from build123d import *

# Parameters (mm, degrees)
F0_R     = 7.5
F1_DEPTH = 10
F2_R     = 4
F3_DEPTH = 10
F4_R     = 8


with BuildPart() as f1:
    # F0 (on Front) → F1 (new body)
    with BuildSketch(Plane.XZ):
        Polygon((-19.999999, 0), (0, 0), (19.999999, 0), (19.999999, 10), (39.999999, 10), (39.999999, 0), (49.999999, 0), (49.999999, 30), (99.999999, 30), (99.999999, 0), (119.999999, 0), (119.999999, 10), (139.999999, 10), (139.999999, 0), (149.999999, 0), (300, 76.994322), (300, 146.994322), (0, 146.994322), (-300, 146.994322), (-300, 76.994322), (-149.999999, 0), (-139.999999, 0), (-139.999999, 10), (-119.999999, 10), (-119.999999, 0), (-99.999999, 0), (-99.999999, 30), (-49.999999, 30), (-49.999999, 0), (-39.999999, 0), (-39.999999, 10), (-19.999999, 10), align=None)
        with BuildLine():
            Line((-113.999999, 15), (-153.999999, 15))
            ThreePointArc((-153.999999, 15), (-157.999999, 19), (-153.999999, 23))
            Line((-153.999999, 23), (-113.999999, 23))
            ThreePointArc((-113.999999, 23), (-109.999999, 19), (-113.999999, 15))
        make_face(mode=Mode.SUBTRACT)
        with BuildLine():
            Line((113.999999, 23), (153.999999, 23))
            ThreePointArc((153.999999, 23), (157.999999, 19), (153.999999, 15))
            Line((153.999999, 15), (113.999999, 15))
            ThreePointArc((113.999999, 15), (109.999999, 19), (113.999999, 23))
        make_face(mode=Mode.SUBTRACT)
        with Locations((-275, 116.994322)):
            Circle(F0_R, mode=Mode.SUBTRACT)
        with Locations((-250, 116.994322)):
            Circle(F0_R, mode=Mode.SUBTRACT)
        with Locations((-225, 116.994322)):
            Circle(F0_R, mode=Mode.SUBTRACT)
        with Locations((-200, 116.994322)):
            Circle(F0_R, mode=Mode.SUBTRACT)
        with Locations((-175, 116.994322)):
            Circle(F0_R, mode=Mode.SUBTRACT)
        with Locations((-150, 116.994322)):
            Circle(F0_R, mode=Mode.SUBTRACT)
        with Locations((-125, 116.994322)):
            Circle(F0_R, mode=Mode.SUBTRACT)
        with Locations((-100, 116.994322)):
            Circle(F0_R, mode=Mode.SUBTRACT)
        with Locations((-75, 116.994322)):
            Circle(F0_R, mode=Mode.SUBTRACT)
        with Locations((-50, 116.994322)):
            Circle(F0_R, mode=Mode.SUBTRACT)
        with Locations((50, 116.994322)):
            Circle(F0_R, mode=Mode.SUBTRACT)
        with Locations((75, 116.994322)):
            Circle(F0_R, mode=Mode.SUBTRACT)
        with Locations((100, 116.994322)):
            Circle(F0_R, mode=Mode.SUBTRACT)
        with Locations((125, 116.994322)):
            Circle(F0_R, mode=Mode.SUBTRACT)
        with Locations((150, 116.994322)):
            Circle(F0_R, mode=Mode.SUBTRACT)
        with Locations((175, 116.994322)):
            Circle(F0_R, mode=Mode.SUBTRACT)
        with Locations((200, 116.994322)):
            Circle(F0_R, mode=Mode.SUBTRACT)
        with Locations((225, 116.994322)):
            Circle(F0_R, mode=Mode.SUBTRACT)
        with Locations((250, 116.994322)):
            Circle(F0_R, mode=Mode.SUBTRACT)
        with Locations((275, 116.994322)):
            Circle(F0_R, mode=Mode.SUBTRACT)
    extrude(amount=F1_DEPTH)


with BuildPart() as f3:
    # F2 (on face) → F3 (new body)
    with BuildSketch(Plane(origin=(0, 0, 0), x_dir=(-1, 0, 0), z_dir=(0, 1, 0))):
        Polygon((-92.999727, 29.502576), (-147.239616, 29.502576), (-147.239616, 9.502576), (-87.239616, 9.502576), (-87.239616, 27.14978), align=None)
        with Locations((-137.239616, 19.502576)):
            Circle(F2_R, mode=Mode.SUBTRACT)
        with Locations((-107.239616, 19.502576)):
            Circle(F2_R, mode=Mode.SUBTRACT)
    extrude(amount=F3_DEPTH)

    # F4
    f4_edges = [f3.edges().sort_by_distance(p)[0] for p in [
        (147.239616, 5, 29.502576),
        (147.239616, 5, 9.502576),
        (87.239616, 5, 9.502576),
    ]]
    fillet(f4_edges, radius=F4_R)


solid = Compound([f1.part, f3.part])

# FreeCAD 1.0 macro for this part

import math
import FreeCAD as App
import Part
import Sketcher
from FreeCAD import Vector
Q = App.Units.Quantity


def edges_at(feature, points):
    """Names of the edges that pass closest to the given points."""
    edges = feature.Shape.Edges
    near = lambda p: min(range(len(edges)), key=lambda i: edges[i].distToShape(Part.Vertex(*p))[0])
    return sorted({f"Edge{near(p) + 1}" for p in points})


def add_polygon(sketch, points):
    """Adds a closed chain of lines whose ends are joined by coincident constraints."""
    first, n = sketch.GeometryCount, len(points)
    for a, b in zip(points, points[1:] + points[:1]):
        sketch.addGeometry(Part.LineSegment(App.Vector(*a, 0), App.Vector(*b, 0)), False)
    for i in range(n):
        sketch.addConstraint(Sketcher.Constraint("Coincident", first + i, 2, first + (i + 1) % n, 1))

doc = App.newDocument("Part")
body = doc.addObject("PartDesign::Body", "Body")

# Sketch on XZ plane
sketch1 = doc.addObject("Sketcher::SketchObject", "Sketch")
body.addObject(sketch1)
sketch1.AttachmentSupport = (doc.XZ_Plane, [""])
sketch1.MapMode = "FlatFace"
add_polygon(sketch1, [(-20, 0), (20, 0), (20, 10), (40, 10), (40, 0), (50, 0), (50, 30), (100, 30), (100, 0), (120, 0), (120, 10), (140, 10), (140, 0), (150, 0), (300, 77), (300, 147), (-300, 147), (-300, 77), (-150, 0), (-140, 0), (-140, 10), (-120, 10), (-120, 0), (-100, 0), (-100, 30), (-50, 30), (-50, 0), (-40, 0), (-40, 10), (-20, 10)])  # lines 0-29
sketch1.addGeometry(Part.ArcOfCircle(Part.Circle(Vector(-114, 19, 0), Vector(0, 0, 1), 4), math.radians(-90), math.radians(90)), False)  # 30
sketch1.addGeometry(Part.LineSegment(Vector(-114, 15, 0), Vector(-154, 15, 0)), False)  # 31
sketch1.addGeometry(Part.ArcOfCircle(Part.Circle(Vector(-154, 19, 0), Vector(0, 0, 1), 4), math.radians(90), math.radians(270)), False)  # 32
sketch1.addGeometry(Part.LineSegment(Vector(-154, 23, 0), Vector(-114, 23, 0)), False)  # 33
sketch1.addGeometry(Part.ArcOfCircle(Part.Circle(Vector(114, 19, 0), Vector(0, 0, 1), 4), math.radians(90), math.radians(270)), False)  # 34
sketch1.addGeometry(Part.LineSegment(Vector(114, 23, 0), Vector(154, 23, 0)), False)  # 35
sketch1.addGeometry(Part.ArcOfCircle(Part.Circle(Vector(154, 19, 0), Vector(0, 0, 1), 4), math.radians(-90), math.radians(90)), False)  # 36
sketch1.addGeometry(Part.LineSegment(Vector(154, 15, 0), Vector(114, 15, 0)), False)  # 37
sketch1.addGeometry(Part.Circle(Vector(-275, 117, 0), Vector(0, 0, 1), 7.5), False)  # 38
sketch1.addGeometry(Part.Circle(Vector(-250, 117, 0), Vector(0, 0, 1), 7.5), False)  # 39
sketch1.addGeometry(Part.Circle(Vector(-225, 117, 0), Vector(0, 0, 1), 7.5), False)  # 40
sketch1.addGeometry(Part.Circle(Vector(-200, 117, 0), Vector(0, 0, 1), 7.5), False)  # 41
sketch1.addGeometry(Part.Circle(Vector(-175, 117, 0), Vector(0, 0, 1), 7.5), False)  # 42
sketch1.addGeometry(Part.Circle(Vector(-150, 117, 0), Vector(0, 0, 1), 7.5), False)  # 43
sketch1.addGeometry(Part.Circle(Vector(-125, 117, 0), Vector(0, 0, 1), 7.5), False)  # 44
sketch1.addGeometry(Part.Circle(Vector(-100, 117, 0), Vector(0, 0, 1), 7.5), False)  # 45
sketch1.addGeometry(Part.Circle(Vector(-75, 117, 0), Vector(0, 0, 1), 7.5), False)  # 46
sketch1.addGeometry(Part.Circle(Vector(-50, 117, 0), Vector(0, 0, 1), 7.5), False)  # 47
sketch1.addGeometry(Part.Circle(Vector(50, 117, 0), Vector(0, 0, 1), 7.5), False)  # 48
sketch1.addGeometry(Part.Circle(Vector(75, 117, 0), Vector(0, 0, 1), 7.5), False)  # 49
sketch1.addGeometry(Part.Circle(Vector(100, 117, 0), Vector(0, 0, 1), 7.5), False)  # 50
sketch1.addGeometry(Part.Circle(Vector(125, 117, 0), Vector(0, 0, 1), 7.5), False)  # 51
sketch1.addGeometry(Part.Circle(Vector(150, 117, 0), Vector(0, 0, 1), 7.5), False)  # 52
sketch1.addGeometry(Part.Circle(Vector(175, 117, 0), Vector(0, 0, 1), 7.5), False)  # 53
sketch1.addGeometry(Part.Circle(Vector(200, 117, 0), Vector(0, 0, 1), 7.5), False)  # 54
sketch1.addGeometry(Part.Circle(Vector(225, 117, 0), Vector(0, 0, 1), 7.5), False)  # 55
sketch1.addGeometry(Part.Circle(Vector(250, 117, 0), Vector(0, 0, 1), 7.5), False)  # 56
sketch1.addGeometry(Part.Circle(Vector(275, 117, 0), Vector(0, 0, 1), 7.5), False)  # 57
sketch1.addConstraint([
    Sketcher.Constraint("Tangent", 30, 1, 31, 1),
    Sketcher.Constraint("Tangent", 31, 2, 32, 2),
    Sketcher.Constraint("Tangent", 32, 1, 33, 1),
    Sketcher.Constraint("Tangent", 33, 2, 30, 2),
    Sketcher.Constraint("Tangent", 34, 1, 35, 1),
    Sketcher.Constraint("Tangent", 35, 2, 36, 2),
    Sketcher.Constraint("Tangent", 36, 1, 37, 1),
    Sketcher.Constraint("Tangent", 37, 2, 34, 2),
    Sketcher.Constraint("Horizontal", 0),
    Sketcher.Constraint("Vertical", 1),
    Sketcher.Constraint("Horizontal", 2),
    Sketcher.Constraint("Vertical", 3),
    Sketcher.Constraint("Horizontal", 4),
    Sketcher.Constraint("Vertical", 5),
    Sketcher.Constraint("Horizontal", 6),
    Sketcher.Constraint("Vertical", 7),
    Sketcher.Constraint("Horizontal", 8),
    Sketcher.Constraint("Vertical", 9),
    Sketcher.Constraint("Horizontal", 10),
    Sketcher.Constraint("Vertical", 11),
    Sketcher.Constraint("Horizontal", 12),
    Sketcher.Constraint("Vertical", 14),
    Sketcher.Constraint("Horizontal", 15),
    Sketcher.Constraint("Vertical", 16),
    Sketcher.Constraint("Horizontal", 18),
    Sketcher.Constraint("Vertical", 19),
    Sketcher.Constraint("Horizontal", 20),
    Sketcher.Constraint("Vertical", 21),
    Sketcher.Constraint("Horizontal", 22),
    Sketcher.Constraint("Vertical", 23),
    Sketcher.Constraint("Horizontal", 24),
    Sketcher.Constraint("Vertical", 25),
    Sketcher.Constraint("Horizontal", 26),
    Sketcher.Constraint("Vertical", 27),
    Sketcher.Constraint("Horizontal", 28),
    Sketcher.Constraint("Vertical", 29),
    Sketcher.Constraint("Horizontal", 31),
    Sketcher.Constraint("Horizontal", 33),
    Sketcher.Constraint("Horizontal", 35),
    Sketcher.Constraint("Horizontal", 37),
    Sketcher.Constraint("Equal", 32, 34),
    Sketcher.Constraint("Equal", 38, 39),
    Sketcher.Constraint("Equal", 39, 40),
    Sketcher.Constraint("Equal", 40, 41),
    Sketcher.Constraint("Equal", 41, 42),
    Sketcher.Constraint("Equal", 42, 43),
    Sketcher.Constraint("Equal", 43, 44),
    Sketcher.Constraint("Equal", 44, 45),
    Sketcher.Constraint("Equal", 45, 46),
    Sketcher.Constraint("Equal", 46, 47),
    Sketcher.Constraint("Equal", 47, 48),
    Sketcher.Constraint("Equal", 48, 49),
    Sketcher.Constraint("Equal", 49, 50),
    Sketcher.Constraint("Equal", 50, 51),
    Sketcher.Constraint("Equal", 51, 52),
    Sketcher.Constraint("Equal", 52, 53),
    Sketcher.Constraint("Equal", 53, 54),
    Sketcher.Constraint("Equal", 54, 55),
    Sketcher.Constraint("Equal", 55, 56),
    Sketcher.Constraint("Equal", 56, 57),
    Sketcher.Constraint("Symmetric", 12, 2, 17, 2, -1, 1),
    Sketcher.Constraint("Symmetric", 8, 2, 21, 2, -1, 1),
    Sketcher.Constraint("Symmetric", 4, 2, 25, 2, -1, 1),
    Sketcher.Constraint("Symmetric", 0, 2, 29, 2, -1, 1),
    Sketcher.Constraint("Symmetric", 30, 3, 34, 3, -2),
    Sketcher.Constraint("Symmetric", 47, 3, 48, 3, -2),
    Sketcher.Constraint("Symmetric", 46, 3, 49, 3, -2),
    Sketcher.Constraint("Symmetric", 45, 3, 50, 3, -2),
    Sketcher.Constraint("Symmetric", 44, 3, 51, 3, -2),
    Sketcher.Constraint("Symmetric", 43, 3, 52, 3, -2),
    Sketcher.Constraint("Symmetric", 42, 3, 53, 3, -2),
    Sketcher.Constraint("Symmetric", 41, 3, 54, 3, -2),
    Sketcher.Constraint("Symmetric", 40, 3, 55, 3, -2),
    Sketcher.Constraint("Symmetric", 39, 3, 56, 3, -2),
    Sketcher.Constraint("Symmetric", 38, 3, 57, 3, -2),
    Sketcher.Constraint("Symmetric", 13, 2, 16, 2, -2),
    Sketcher.Constraint("Symmetric", 11, 2, 18, 2, -2),
    Sketcher.Constraint("Symmetric", 7, 2, 22, 2, -2),
    Sketcher.Constraint("Symmetric", 3, 2, 26, 2, -2),
    Sketcher.Constraint("Horizontal", 38, 3, 39, 3),
    Sketcher.Constraint("Horizontal", 39, 3, 40, 3),
    Sketcher.Constraint("Horizontal", 40, 3, 41, 3),
    Sketcher.Constraint("Horizontal", 41, 3, 42, 3),
    Sketcher.Constraint("Horizontal", 42, 3, 43, 3),
    Sketcher.Constraint("Horizontal", 43, 3, 44, 3),
    Sketcher.Constraint("Horizontal", 44, 3, 45, 3),
    Sketcher.Constraint("Horizontal", 45, 3, 46, 3),
    Sketcher.Constraint("Horizontal", 46, 3, 47, 3),
    Sketcher.Constraint("Horizontal", 2, 2, 9, 2),
    Sketcher.Constraint("Horizontal", 10, 2, 19, 2),
    Sketcher.Constraint("Horizontal", 6, 2, 23, 2),
    Sketcher.Constraint("Horizontal", 20, 2, 27, 2),
    Sketcher.Constraint("Vertical", 48, 3, 4, 2),
    Sketcher.Constraint("Vertical", 50, 3, 6, 2),
    Sketcher.Constraint("Vertical", 52, 3, 12, 2),
    Sketcher.Constraint("Equal", 2, 8),
    Sketcher.Constraint("Equal", 8, 10),
    Sketcher.Constraint("Equal", 4, 12),
    Sketcher.Constraint("Equal", 33, 35),
    Sketcher.Constraint("Equal", 26, 1),
    Sketcher.Constraint("Diameter", 38, Q("15 mm")),
    Sketcher.Constraint("Radius", 30, Q("4 mm")),
    Sketcher.Constraint("DistanceX", 2, 1, 2, 2, Q("20 mm")),
    Sketcher.Constraint("DistanceX", 4, 1, 4, 2, Q("10 mm")),
    Sketcher.Constraint("DistanceX", 6, 1, 6, 2, Q("50 mm")),
    Sketcher.Constraint("DistanceX", 15, 2, 15, 1, Q("600 mm")),
    Sketcher.Constraint("DistanceX", 31, 2, 31, 1, Q("40 mm")),
    Sketcher.Constraint("DistanceY", 5, 1, 5, 2, Q("30 mm")),
    Sketcher.Constraint("DistanceY", 14, 1, 14, 2, Q("70 mm")),
    Sketcher.Constraint("DistanceX", 30, 3, -1, 1, Q("113.999999 mm")),
    Sketcher.Constraint("DistanceY", -1, 1, 30, 3, Q("19 mm")),
    Sketcher.Constraint("DistanceX", 38, 3, -1, 1, Q("275 mm")),
    Sketcher.Constraint("DistanceX", 39, 3, -1, 1, Q("250 mm")),
    Sketcher.Constraint("DistanceX", 40, 3, -1, 1, Q("225 mm")),
    Sketcher.Constraint("DistanceX", 41, 3, -1, 1, Q("200 mm")),
    Sketcher.Constraint("DistanceX", 42, 3, -1, 1, Q("175 mm")),
    Sketcher.Constraint("DistanceX", 43, 3, -1, 1, Q("150 mm")),
    Sketcher.Constraint("DistanceX", 44, 3, -1, 1, Q("125 mm")),
    Sketcher.Constraint("DistanceX", 46, 3, -1, 1, Q("75 mm")),
    Sketcher.Constraint("DistanceY", -1, 1, 38, 3, Q("116.994322 mm")),
    Sketcher.Constraint("DistanceY", -1, 1, 13, 2, Q("76.994322 mm")),
])
pad1 = doc.addObject("PartDesign::Pad", "Pad")
body.addObject(pad1)
pad1.Profile = sketch1
pad1.Length = 10
body2 = doc.addObject("PartDesign::Body", "Body001")

# Sketch on XZ plane
sketch2 = doc.addObject("Sketcher::SketchObject", "Sketch001")
body2.addObject(sketch2)
sketch2.AttachmentSupport = (doc.getObject("XZ_Plane001"), [""])
sketch2.MapMode = "FlatFace"
add_polygon(sketch2, [(93, 29.5), (147.2, 29.5), (147.2, 9.5), (87.2, 9.5), (87.2, 27.1)])  # lines 0-4
sketch2.addGeometry(Part.Circle(Vector(137.2, 19.5, 0), Vector(0, 0, 1), 4), False)  # 5
sketch2.addGeometry(Part.Circle(Vector(107.2, 19.5, 0), Vector(0, 0, 1), 4), False)  # 6
sketch2.addConstraint([
    Sketcher.Constraint("Horizontal", 0),
    Sketcher.Constraint("Vertical", 1),
    Sketcher.Constraint("Horizontal", 2),
    Sketcher.Constraint("Vertical", 3),
    Sketcher.Constraint("Equal", 5, 6),
    Sketcher.Constraint("Horizontal", 5, 3, 6, 3),
    Sketcher.Constraint("Diameter", 5, Q("8 mm")),
    Sketcher.Constraint("DistanceX", 2, 2, 2, 1, Q("60 mm")),
    Sketcher.Constraint("DistanceY", 1, 2, 1, 1, Q("20 mm")),
    Sketcher.Constraint("DistanceX", 6, 3, 5, 3, Q("30 mm")),
    Sketcher.Constraint("DistanceX", 5, 3, 0, 2, Q("10 mm")),
    Sketcher.Constraint("DistanceY", 5, 3, 0, 2, Q("10 mm")),
    Sketcher.Constraint("Distance", 4, Q("6.2221 mm")),
    Sketcher.Constraint("DistanceX", 0, 1, 0, 2, Q("54.239889 mm")),
    Sketcher.Constraint("DistanceY", -1, 1, 3, 2, Q("27.14978 mm")),
    Sketcher.Constraint("DistanceX", -1, 1, 5, 3, Q("137.239616 mm")),
])
pad2 = doc.addObject("PartDesign::Pad", "Pad001")
body2.addObject(pad2)
pad2.Profile = sketch2
pad2.Length = 10
pad2.Reversed = True
doc.recompute()

fillet = doc.addObject("PartDesign::Fillet", "Fillet")
body2.addObject(fillet)
fillet.Base = (pad2, edges_at(pad2, [(147.24, 5, 29.503), (147.24, 5, 9.503), (87.24, 5, 9.503)]))
fillet.Radius = 8

doc.recompute()
